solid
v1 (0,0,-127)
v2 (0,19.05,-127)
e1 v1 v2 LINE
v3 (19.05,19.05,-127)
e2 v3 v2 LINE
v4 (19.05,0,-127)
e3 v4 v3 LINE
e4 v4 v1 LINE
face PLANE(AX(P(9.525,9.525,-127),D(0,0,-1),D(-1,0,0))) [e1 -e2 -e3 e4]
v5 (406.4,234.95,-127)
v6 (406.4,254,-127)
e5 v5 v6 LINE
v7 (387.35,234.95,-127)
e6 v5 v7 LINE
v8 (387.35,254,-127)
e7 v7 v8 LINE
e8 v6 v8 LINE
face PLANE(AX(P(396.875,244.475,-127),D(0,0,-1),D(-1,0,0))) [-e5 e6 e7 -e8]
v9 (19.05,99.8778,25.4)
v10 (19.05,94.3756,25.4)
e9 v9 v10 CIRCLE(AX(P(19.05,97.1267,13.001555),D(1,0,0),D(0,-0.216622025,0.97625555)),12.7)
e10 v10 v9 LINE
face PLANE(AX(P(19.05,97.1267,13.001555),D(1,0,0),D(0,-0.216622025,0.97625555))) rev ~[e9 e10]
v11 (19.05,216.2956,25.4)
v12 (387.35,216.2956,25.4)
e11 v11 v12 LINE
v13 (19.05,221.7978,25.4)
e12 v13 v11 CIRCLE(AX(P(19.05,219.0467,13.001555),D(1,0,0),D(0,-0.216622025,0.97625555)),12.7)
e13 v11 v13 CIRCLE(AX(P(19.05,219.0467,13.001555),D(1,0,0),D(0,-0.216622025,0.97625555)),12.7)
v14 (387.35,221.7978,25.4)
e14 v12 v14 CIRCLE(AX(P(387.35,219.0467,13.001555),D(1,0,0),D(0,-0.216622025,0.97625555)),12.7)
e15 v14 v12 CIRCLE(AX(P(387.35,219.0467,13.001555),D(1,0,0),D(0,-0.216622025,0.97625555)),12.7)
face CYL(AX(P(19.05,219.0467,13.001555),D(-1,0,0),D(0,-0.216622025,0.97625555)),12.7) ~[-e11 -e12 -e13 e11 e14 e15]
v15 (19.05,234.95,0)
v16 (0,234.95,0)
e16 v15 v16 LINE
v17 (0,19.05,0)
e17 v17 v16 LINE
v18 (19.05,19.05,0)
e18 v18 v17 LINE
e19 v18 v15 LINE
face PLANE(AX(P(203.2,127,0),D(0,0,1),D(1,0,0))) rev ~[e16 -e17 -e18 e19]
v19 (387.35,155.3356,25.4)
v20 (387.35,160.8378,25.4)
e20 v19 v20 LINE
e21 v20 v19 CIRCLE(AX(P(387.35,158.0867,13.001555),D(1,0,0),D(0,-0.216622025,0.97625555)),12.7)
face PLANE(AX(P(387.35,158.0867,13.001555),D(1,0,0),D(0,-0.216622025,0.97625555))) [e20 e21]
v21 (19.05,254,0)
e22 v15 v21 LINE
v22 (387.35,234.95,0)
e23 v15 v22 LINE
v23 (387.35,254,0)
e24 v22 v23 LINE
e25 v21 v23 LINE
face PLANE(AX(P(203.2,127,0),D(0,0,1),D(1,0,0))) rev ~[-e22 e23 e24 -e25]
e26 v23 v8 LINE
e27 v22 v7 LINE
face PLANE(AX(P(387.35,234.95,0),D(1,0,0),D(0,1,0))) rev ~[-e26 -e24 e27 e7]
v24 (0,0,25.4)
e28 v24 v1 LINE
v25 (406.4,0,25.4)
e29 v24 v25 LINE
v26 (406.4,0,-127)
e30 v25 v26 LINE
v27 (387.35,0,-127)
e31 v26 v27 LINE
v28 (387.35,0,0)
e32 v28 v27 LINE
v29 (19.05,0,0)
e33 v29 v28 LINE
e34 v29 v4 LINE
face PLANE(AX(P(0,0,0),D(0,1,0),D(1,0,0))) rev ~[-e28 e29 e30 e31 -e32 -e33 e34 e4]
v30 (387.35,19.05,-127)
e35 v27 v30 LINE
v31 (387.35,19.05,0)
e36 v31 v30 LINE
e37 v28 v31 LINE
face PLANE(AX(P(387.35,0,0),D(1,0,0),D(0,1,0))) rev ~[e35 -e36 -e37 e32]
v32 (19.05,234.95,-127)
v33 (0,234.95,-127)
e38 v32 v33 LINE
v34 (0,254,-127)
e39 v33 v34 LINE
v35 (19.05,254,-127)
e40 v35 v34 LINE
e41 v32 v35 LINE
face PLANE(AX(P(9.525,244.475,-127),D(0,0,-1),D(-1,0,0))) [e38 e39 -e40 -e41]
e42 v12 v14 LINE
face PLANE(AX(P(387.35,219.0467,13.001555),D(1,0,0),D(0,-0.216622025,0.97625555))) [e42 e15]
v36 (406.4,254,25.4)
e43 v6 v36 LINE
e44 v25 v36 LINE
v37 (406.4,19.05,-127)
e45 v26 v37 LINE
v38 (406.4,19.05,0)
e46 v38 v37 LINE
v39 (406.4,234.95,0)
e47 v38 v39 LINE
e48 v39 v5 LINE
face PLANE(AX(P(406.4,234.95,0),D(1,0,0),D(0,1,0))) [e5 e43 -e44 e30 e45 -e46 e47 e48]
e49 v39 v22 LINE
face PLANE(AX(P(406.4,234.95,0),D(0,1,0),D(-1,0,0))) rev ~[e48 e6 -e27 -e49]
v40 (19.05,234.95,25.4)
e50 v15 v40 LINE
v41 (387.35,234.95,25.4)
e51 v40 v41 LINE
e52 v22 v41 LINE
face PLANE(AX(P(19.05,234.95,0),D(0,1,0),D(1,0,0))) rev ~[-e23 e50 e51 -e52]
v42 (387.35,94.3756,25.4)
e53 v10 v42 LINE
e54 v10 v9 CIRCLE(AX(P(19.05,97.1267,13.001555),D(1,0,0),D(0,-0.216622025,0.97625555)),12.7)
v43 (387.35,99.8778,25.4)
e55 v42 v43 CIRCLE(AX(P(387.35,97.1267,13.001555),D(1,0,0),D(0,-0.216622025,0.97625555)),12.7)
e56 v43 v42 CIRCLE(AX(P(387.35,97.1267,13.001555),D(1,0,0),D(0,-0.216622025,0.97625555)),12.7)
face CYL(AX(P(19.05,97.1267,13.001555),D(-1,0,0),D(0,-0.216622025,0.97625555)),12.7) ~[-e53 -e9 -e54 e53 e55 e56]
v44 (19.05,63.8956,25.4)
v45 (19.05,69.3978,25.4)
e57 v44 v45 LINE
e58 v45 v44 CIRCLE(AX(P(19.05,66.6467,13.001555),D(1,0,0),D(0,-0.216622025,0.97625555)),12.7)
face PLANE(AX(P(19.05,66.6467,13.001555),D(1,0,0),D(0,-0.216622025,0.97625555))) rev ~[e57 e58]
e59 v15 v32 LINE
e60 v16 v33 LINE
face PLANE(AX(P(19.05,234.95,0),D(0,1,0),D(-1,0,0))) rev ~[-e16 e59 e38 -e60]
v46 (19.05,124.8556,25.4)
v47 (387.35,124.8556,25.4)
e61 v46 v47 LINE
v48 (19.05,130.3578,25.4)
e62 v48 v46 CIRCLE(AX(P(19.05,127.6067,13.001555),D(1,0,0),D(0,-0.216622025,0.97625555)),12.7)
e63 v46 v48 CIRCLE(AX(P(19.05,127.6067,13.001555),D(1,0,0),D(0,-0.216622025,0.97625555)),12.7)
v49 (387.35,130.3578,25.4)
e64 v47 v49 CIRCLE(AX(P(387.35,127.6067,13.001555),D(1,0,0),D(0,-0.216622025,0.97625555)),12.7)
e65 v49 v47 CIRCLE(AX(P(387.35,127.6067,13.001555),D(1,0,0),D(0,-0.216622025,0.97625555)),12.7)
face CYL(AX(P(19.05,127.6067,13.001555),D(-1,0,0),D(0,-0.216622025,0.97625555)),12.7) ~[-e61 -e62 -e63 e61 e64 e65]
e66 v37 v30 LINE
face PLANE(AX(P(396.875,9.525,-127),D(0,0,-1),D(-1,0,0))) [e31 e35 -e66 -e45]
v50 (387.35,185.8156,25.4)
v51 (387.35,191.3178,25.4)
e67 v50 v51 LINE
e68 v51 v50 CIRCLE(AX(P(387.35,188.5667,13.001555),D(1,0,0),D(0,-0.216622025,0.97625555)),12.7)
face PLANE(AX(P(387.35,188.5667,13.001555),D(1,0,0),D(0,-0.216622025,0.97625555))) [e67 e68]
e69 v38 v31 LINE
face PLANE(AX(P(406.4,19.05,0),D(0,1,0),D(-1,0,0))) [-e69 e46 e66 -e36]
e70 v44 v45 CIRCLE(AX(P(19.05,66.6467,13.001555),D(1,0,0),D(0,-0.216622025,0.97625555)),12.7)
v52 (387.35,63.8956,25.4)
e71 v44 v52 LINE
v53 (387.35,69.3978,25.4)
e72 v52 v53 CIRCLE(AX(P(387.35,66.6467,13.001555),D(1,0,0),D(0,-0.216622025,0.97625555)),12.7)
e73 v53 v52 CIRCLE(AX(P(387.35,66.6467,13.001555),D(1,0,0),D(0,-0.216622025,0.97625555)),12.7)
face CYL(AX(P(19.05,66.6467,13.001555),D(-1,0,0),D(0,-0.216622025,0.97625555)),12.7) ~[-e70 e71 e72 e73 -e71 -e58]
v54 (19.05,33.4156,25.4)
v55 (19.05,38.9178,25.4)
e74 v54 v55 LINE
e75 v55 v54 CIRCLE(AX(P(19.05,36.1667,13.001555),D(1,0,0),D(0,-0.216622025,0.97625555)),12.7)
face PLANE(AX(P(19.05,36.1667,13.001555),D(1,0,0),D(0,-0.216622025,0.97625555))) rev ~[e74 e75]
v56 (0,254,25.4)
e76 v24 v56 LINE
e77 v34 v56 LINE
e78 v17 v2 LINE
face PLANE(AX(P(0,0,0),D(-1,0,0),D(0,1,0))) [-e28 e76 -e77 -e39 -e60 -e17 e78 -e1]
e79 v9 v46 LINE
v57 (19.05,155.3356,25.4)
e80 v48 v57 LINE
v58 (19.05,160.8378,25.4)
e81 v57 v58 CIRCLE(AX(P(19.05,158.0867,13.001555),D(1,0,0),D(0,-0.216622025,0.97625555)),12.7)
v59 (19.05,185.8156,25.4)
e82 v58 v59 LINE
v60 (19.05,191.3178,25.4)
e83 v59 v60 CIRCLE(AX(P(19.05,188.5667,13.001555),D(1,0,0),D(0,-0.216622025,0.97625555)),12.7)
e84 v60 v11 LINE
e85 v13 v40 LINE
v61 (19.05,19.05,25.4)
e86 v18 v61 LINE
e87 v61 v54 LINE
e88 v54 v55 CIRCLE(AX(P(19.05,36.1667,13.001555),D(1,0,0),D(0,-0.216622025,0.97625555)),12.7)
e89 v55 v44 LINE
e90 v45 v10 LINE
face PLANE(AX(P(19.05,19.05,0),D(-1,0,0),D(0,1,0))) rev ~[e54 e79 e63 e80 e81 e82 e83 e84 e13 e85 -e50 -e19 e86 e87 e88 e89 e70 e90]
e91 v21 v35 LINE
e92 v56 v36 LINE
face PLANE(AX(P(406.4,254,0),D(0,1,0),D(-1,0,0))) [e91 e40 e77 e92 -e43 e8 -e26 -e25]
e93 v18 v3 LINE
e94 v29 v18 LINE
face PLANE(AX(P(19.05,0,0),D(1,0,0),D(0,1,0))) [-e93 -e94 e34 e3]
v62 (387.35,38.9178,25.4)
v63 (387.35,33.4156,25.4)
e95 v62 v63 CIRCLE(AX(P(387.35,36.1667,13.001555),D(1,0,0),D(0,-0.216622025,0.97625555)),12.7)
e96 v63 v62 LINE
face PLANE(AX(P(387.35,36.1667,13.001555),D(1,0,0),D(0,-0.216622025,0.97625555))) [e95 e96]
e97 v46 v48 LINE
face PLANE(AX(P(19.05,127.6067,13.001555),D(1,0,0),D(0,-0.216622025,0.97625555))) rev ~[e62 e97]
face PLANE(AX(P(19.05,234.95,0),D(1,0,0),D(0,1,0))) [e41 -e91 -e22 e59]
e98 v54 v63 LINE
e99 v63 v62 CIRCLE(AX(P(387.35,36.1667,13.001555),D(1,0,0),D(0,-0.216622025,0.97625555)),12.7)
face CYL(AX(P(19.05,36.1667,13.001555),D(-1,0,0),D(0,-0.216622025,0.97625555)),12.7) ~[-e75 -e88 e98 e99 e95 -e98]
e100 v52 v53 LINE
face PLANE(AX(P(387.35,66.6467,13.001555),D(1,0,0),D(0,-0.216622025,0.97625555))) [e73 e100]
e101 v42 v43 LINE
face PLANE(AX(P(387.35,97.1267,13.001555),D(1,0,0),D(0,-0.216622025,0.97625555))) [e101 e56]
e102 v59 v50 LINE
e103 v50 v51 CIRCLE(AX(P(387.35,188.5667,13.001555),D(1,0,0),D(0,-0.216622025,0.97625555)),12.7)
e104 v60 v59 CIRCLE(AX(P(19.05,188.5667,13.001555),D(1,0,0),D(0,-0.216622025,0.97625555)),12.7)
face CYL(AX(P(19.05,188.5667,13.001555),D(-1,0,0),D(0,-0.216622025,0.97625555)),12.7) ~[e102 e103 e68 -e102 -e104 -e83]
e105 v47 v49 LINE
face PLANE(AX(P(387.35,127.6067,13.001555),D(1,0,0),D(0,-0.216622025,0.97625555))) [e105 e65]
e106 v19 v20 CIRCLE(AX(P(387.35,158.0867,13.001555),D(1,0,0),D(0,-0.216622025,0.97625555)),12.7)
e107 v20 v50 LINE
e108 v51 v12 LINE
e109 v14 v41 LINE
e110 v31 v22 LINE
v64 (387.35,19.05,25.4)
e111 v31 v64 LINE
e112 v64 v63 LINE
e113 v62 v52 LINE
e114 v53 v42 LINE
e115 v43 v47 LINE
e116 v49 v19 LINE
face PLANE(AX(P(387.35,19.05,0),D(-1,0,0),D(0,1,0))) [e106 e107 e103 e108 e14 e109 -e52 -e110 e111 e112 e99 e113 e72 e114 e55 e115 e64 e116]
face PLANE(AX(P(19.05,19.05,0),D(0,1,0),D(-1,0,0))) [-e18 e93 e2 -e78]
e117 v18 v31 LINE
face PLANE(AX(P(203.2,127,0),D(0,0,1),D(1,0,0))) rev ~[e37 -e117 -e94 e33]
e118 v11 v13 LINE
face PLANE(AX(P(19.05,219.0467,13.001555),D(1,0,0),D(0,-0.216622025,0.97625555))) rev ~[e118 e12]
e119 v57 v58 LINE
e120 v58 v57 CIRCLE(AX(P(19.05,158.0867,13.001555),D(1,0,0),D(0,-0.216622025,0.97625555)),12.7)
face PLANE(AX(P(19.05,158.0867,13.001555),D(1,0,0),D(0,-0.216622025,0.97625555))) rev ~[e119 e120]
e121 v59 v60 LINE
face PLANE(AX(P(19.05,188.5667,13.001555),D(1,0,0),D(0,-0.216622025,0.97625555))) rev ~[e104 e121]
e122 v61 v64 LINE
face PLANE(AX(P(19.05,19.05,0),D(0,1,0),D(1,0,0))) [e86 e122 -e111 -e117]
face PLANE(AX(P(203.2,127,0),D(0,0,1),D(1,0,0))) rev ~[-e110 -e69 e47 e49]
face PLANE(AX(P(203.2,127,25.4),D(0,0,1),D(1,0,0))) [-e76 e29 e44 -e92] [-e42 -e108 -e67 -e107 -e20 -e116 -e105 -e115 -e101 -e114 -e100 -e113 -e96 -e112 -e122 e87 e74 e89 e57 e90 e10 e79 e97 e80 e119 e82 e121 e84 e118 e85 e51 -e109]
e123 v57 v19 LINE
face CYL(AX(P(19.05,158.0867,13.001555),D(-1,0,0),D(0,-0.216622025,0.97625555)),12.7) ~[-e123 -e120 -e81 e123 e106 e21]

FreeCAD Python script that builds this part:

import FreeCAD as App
import Part
import Sketcher
Q = App.Units.Quantity

doc = App.newDocument("Part")
params = doc.addObject("Spreadsheet::Sheet", "Params")
for row, (alias, value) in enumerate([
    ("sketch1_width", "16 in"),
    ("sketch1_height", "10 in"),
    ("sketch1_width2", "14.5 in"),
    ("sketch1_height2", "8.5 in"),
    ("pad1_length", "1 in"),
    ("sketch2_diameter", "1 in"),
    ("pad2_length", "14.5 in"),
    ("sketch3_width", "0.75 in"),
    ("pad3_length", "5 in"),
], start=1):
    params.set(f"A{row}", alias)
    params.set(f"B{row}", "=" + value)
    params.setAlias(f"B{row}", alias)

body = doc.addObject("PartDesign::Body", "Body")

sketch1 = body.newObject("Sketcher::SketchObject", "Sketch")
sketch1.AttachmentSupport = (doc.getObject("XY_Plane"), [""])
sketch1.MapMode = "FlatFace"
sketch1.addGeometry([
    Part.LineSegment(App.Vector(0, 254, 0), App.Vector(0, 0, 0)),
    Part.LineSegment(App.Vector(0, 0, 0), App.Vector(406, 0, 0)),
    Part.LineSegment(App.Vector(406, 0, 0), App.Vector(406, 254, 0)),
    Part.LineSegment(App.Vector(406, 254, 0), App.Vector(0, 254, 0)),
    Part.LineSegment(App.Vector(387, 19, 0), App.Vector(19, 19, 0)),
    Part.LineSegment(App.Vector(19, 19, 0), App.Vector(19, 235, 0)),
    Part.LineSegment(App.Vector(19, 235, 0), App.Vector(387, 235, 0)),
    Part.LineSegment(App.Vector(387, 235, 0), App.Vector(387, 19, 0)),
], False)
sketch1.addConstraint([
    Sketcher.Constraint("Coincident", 0, 2, 1, 1),
    Sketcher.Constraint("Coincident", 1, 2, 2, 1),
    Sketcher.Constraint("Coincident", 2, 2, 3, 1),
    Sketcher.Constraint("Coincident", 3, 2, 0, 1),
    Sketcher.Constraint("Coincident", 4, 2, 5, 1),
    Sketcher.Constraint("Coincident", 5, 2, 6, 1),
    Sketcher.Constraint("Coincident", 6, 2, 7, 1),
    Sketcher.Constraint("Coincident", 7, 2, 4, 1),
    Sketcher.Constraint("Vertical", 0),
    Sketcher.Constraint("Horizontal", 1),
    Sketcher.Constraint("Vertical", 2),
    Sketcher.Constraint("Horizontal", 3),
    Sketcher.Constraint("Horizontal", 4),
    Sketcher.Constraint("Vertical", 5),
    Sketcher.Constraint("Horizontal", 6),
    Sketcher.Constraint("Vertical", 7),
    Sketcher.Constraint("Coincident", 0, 2, -1, 1),
    Sketcher.Constraint("DistanceX", 1, 1, 1, 2, Q("16 in")),
    Sketcher.Constraint("DistanceY", 0, 2, 0, 1, Q("10 in")),
    Sketcher.Constraint("DistanceX", 4, 2, 4, 1, Q("14.5 in")),
    Sketcher.Constraint("DistanceY", 5, 1, 5, 2, Q("8.5 in")),
    Sketcher.Constraint("DistanceX", -1, 1, 4, 2, Q("0.75 in")),
    Sketcher.Constraint("DistanceY", -1, 1, 4, 2, Q("0.75 in")),
])
sketch1.setExpression("Constraints[17]", "Params.sketch1_width")
sketch1.setExpression("Constraints[18]", "Params.sketch1_height")
sketch1.setExpression("Constraints[19]", "Params.sketch1_width2")
sketch1.setExpression("Constraints[20]", "Params.sketch1_height2")
pad1 = body.newObject("PartDesign::Pad", "Pad")
pad1.Profile = sketch1
pad1.setExpression("Length", "Params.pad1_length")

sketch2 = body.newObject("Sketcher::SketchObject", "Sketch001")
sketch2.AttachmentSupport = (doc.getObject("YZ_Plane"), [""])
sketch2.MapMode = "FlatFace"
sketch2.AttachmentOffset = App.Placement(App.Vector(0, 0, 0.75 * 25.4), App.Rotation())
sketch2.addGeometry([
    Part.Circle(App.Vector(219, 13, 0), App.Vector(0, 0, 1), 13),
    Part.Circle(App.Vector(189, 13, 0), App.Vector(0, 0, 1), 13),
    Part.Circle(App.Vector(158, 13, 0), App.Vector(0, 0, 1), 13),
    Part.Circle(App.Vector(128, 13, 0), App.Vector(0, 0, 1), 13),
    Part.Circle(App.Vector(97, 13, 0), App.Vector(0, 0, 1), 13),
    Part.Circle(App.Vector(67, 13, 0), App.Vector(0, 0, 1), 13),
    Part.Circle(App.Vector(36, 13, 0), App.Vector(0, 0, 1), 13),
], False)
sketch2.addConstraint([
    Sketcher.Constraint("Equal", 0, 1),
    Sketcher.Constraint("Equal", 1, 2),
    Sketcher.Constraint("Equal", 2, 3),
    Sketcher.Constraint("Equal", 3, 4),
    Sketcher.Constraint("Equal", 4, 5),
    Sketcher.Constraint("Equal", 5, 6),
    Sketcher.Constraint("Horizontal", 0, 3, 1, 3),
    Sketcher.Constraint("Horizontal", 1, 3, 2, 3),
    Sketcher.Constraint("Horizontal", 2, 3, 3, 3),
    Sketcher.Constraint("Horizontal", 3, 3, 4, 3),
    Sketcher.Constraint("Horizontal", 4, 3, 5, 3),
    Sketcher.Constraint("Horizontal", 5, 3, 6, 3),
    Sketcher.Constraint("Diameter", 0, Q("1 in")),
    Sketcher.Constraint("DistanceX", 5, 3, 0, 3, Q("6 in")),
    Sketcher.Constraint("DistanceX", 6, 3, 1, 3, Q("6 in")),
    Sketcher.Constraint("DistanceX", 1, 3, 0, 3, Q("1.2 in")),
    Sketcher.Constraint("DistanceX", 2, 3, 1, 3, Q("1.2 in")),
    Sketcher.Constraint("DistanceX", 3, 3, 2, 3, Q("1.2 in")),
    Sketcher.Constraint("DistanceX", 4, 3, 3, 3, Q("1.2 in")),
    Sketcher.Constraint("DistanceX", -1, 1, 0, 3, 219.0467),
    Sketcher.Constraint("DistanceY", -1, 1, 0, 3, 13.001555),
])
sketch2.setExpression("Constraints[12]", "Params.sketch2_diameter")
pad2 = body.newObject("PartDesign::Pad", "Pad001")
pad2.Profile = sketch2
pad2.setExpression("Length", "Params.pad2_length")

sketch3 = body.newObject("Sketcher::SketchObject", "Sketch002")
sketch3.AttachmentSupport = (doc.getObject("XY_Plane"), [""])
sketch3.MapMode = "FlatFace"
sketch3.addGeometry([
    Part.LineSegment(App.Vector(406, 254, 0), App.Vector(406, 235, 0)),
    Part.LineSegment(App.Vector(406, 235, 0), App.Vector(387, 235, 0)),
    Part.LineSegment(App.Vector(387, 235, 0), App.Vector(387, 254, 0)),
    Part.LineSegment(App.Vector(387, 254, 0), App.Vector(406, 254, 0)),
    Part.LineSegment(App.Vector(406, 19, 0), App.Vector(406, 0, 0)),
    Part.LineSegment(App.Vector(406, 0, 0), App.Vector(387, 0, 0)),
    Part.LineSegment(App.Vector(387, 0, 0), App.Vector(387, 19, 0)),
    Part.LineSegment(App.Vector(387, 19, 0), App.Vector(406, 19, 0)),
    Part.LineSegment(App.Vector(19, 254, 0), App.Vector(19, 235, 0)),
    Part.LineSegment(App.Vector(19, 235, 0), App.Vector(0, 235, 0)),
    Part.LineSegment(App.Vector(0, 235, 0), App.Vector(0, 254, 0)),
    Part.LineSegment(App.Vector(0, 254, 0), App.Vector(19, 254, 0)),
    Part.LineSegment(App.Vector(19, 19, 0), App.Vector(19, 0, 0)),
    Part.LineSegment(App.Vector(19, 0, 0), App.Vector(0, 0, 0)),
    Part.LineSegment(App.Vector(0, 0, 0), App.Vector(0, 19, 0)),
    Part.LineSegment(App.Vector(0, 19, 0), App.Vector(19, 19, 0)),
], False)
sketch3.addConstraint([
    Sketcher.Constraint("Coincident", 0, 2, 1, 1),
    Sketcher.Constraint("Coincident", 1, 2, 2, 1),
    Sketcher.Constraint("Coincident", 2, 2, 3, 1),
    Sketcher.Constraint("Coincident", 3, 2, 0, 1),
    Sketcher.Constraint("Coincident", 4, 2, 5, 1),
    Sketcher.Constraint("Coincident", 5, 2, 6, 1),
    Sketcher.Constraint("Coincident", 6, 2, 7, 1),
    Sketcher.Constraint("Coincident", 7, 2, 4, 1),
    Sketcher.Constraint("Coincident", 8, 2, 9, 1),
    Sketcher.Constraint("Coincident", 9, 2, 10, 1),
    Sketcher.Constraint("Coincident", 10, 2, 11, 1),
    Sketcher.Constraint("Coincident", 11, 2, 8, 1),
    Sketcher.Constraint("Coincident", 12, 2, 13, 1),
    Sketcher.Constraint("Coincident", 13, 2, 14, 1),
    Sketcher.Constraint("Coincident", 14, 2, 15, 1),
    Sketcher.Constraint("Coincident", 15, 2, 12, 1),
    Sketcher.Constraint("Vertical", 0),
    Sketcher.Constraint("Horizontal", 1),
    Sketcher.Constraint("Vertical", 2),
    Sketcher.Constraint("Horizontal", 3),
    Sketcher.Constraint("Vertical", 4),
    Sketcher.Constraint("Horizontal", 5),
    Sketcher.Constraint("Vertical", 6),
    Sketcher.Constraint("Horizontal", 7),
    Sketcher.Constraint("Vertical", 8),
    Sketcher.Constraint("Horizontal", 9),
    Sketcher.Constraint("Vertical", 10),
    Sketcher.Constraint("Horizontal", 11),
    Sketcher.Constraint("Vertical", 12),
    Sketcher.Constraint("Horizontal", 13),
    Sketcher.Constraint("Vertical", 14),
    Sketcher.Constraint("Horizontal", 15),
    Sketcher.Constraint("Coincident", 13, 2, -1, 1),
    Sketcher.Constraint("PointOnObject", 4, 2, -1),
    Sketcher.Constraint("PointOnObject", 9, 2, -2),
    Sketcher.Constraint("Horizontal", 1, 2, 8, 2),
    Sketcher.Constraint("Horizontal", 3, 2, 10, 2),
    Sketcher.Constraint("Horizontal", 7, 2, 14, 2),
    Sketcher.Constraint("Vertical", 3, 2, 4, 2),
    Sketcher.Constraint("Vertical", 2, 2, 5, 2),
    Sketcher.Constraint("Vertical", 11, 2, 12, 2),
    Sketcher.Constraint("Equal", 7, 9),
    Sketcher.Constraint("Equal", 15, 0),
    Sketcher.Constraint("Equal", 2, 4),
    Sketcher.Constraint("DistanceX", -1, 1, 0, 2, Q("16 in")),
    Sketcher.Constraint("DistanceY", -1, 1, 2, 2, Q("10 in")),
    Sketcher.Constraint("DistanceX", 1, 2, 1, 1, Q("0.75 in")),
])
sketch3.setExpression("Constraints[46]", "Params.sketch3_width")
pad3 = body.newObject("PartDesign::Pad", "Pad002")
pad3.Profile = sketch3
pad3.setExpression("Length", "Params.pad3_length")
pad3.Reversed = True

doc.recompute()
